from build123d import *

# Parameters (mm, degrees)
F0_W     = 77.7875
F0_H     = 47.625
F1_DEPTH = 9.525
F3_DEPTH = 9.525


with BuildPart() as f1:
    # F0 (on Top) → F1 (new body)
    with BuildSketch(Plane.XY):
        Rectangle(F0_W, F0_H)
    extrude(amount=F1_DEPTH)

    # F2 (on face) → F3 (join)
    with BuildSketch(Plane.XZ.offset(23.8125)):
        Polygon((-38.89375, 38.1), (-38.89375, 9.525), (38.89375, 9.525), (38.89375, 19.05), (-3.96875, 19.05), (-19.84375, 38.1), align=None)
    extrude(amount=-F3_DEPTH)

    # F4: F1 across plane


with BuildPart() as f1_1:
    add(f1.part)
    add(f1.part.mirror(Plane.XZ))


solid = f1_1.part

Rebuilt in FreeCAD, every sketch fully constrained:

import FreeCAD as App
import Part
import Sketcher
from FreeCAD import Vector
Q = App.Units.Quantity


def add_polygon(sketch, points):
    """Adds a closed chain of lines whose ends are joined by coincident constraints."""
    first, n = sketch.GeometryCount, len(points)
    for a, b in zip(points, points[1:] + points[:1]):
        sketch.addGeometry(Part.LineSegment(App.Vector(*a, 0), App.Vector(*b, 0)), False)
    for i in range(n):
        sketch.addConstraint(Sketcher.Constraint("Coincident", first + i, 2, first + (i + 1) % n, 1))

doc = App.newDocument("Part")
body = doc.addObject("PartDesign::Body", "Body")

# Sketch on XY plane
sketch1 = doc.addObject("Sketcher::SketchObject", "Sketch")
body.addObject(sketch1)
sketch1.AttachmentSupport = (doc.XY_Plane, [""])
sketch1.MapMode = "FlatFace"
add_polygon(sketch1, [(-39, 24), (-39, -24), (39, -24), (39, 24)])  # lines 0-3
sketch1.addConstraint([
    Sketcher.Constraint("Vertical", 0),
    Sketcher.Constraint("Horizontal", 1),
    Sketcher.Constraint("Vertical", 2),
    Sketcher.Constraint("Horizontal", 3),
    Sketcher.Constraint("Symmetric", 0, 2, 2, 2, -1, 1),
    Sketcher.Constraint("DistanceX", 1, 1, 1, 2, Q("3.0625 in")),
    Sketcher.Constraint("DistanceY", 0, 2, 0, 1, Q("1.875 in")),
])
pad1 = doc.addObject("PartDesign::Pad", "Pad")
body.addObject(pad1)
pad1.Profile = sketch1
pad1.Length = Q("0.375 in")

# Sketch on XZ plane
sketch2 = doc.addObject("Sketcher::SketchObject", "Sketch001")
body.addObject(sketch2)
sketch2.AttachmentSupport = (doc.XZ_Plane, [""])
sketch2.MapMode = "FlatFace"
sketch2.AttachmentOffset = App.Placement(Vector(0, 0, 0.9375 * 25.4), App.Rotation())
add_polygon(sketch2, [(-39, 38), (-39, 10), (39, 10), (39, 19), (-4, 19), (-20, 38)])  # lines 0-5
sketch2.addConstraint([
    Sketcher.Constraint("Vertical", 0),
    Sketcher.Constraint("Horizontal", 1),
    Sketcher.Constraint("Vertical", 2),
    Sketcher.Constraint("Horizontal", 3),
    Sketcher.Constraint("Horizontal", 5),
    Sketcher.Constraint("DistanceX", 5, 2, 5, 1, Q("0.75 in")),
    Sketcher.Constraint("DistanceY", -1, 1, 4, 2, Q("1.5 in")),
    Sketcher.Constraint("DistanceX", 1, 1, 1, 2, Q("3.0625 in")),
    Sketcher.Constraint("DistanceX", 3, 2, 3, 1, Q("1.6875 in")),
    Sketcher.Constraint("DistanceY", 0, 2, 0, 1, Q("1.125 in")),
    Sketcher.Constraint("DistanceY", 2, 1, 2, 2, Q("0.375 in")),
    Sketcher.Constraint("DistanceX", 0, 2, -1, 1, Q("1.53125 in")),
])
pad2 = doc.addObject("PartDesign::Pad", "Pad001")
body.addObject(pad2)
pad2.Profile = sketch2
pad2.Length = Q("0.375 in")
pad2.Reversed = True
body2 = doc.addObject("PartDesign::Body", "Body001")
doc.recompute()

body2.BaseFeature = body
doc.recompute()

mirroring = doc.addObject("Part::Mirroring", "Mirroring")
mirroring.Source = body
mirroring.Base = Vector(0, 0, 0)
mirroring.Normal = Vector(0, -1, 0)
body3 = doc.addObject("PartDesign::Body", "Body002")
body3.BaseFeature = mirroring
boolean = doc.addObject("PartDesign::Boolean", "Boolean")
body2.addObject(boolean)
boolean.Type = "Fuse"
boolean.addObjects([body3])
doc.recompute()
mirroring.Visibility = False

doc.recompute()
